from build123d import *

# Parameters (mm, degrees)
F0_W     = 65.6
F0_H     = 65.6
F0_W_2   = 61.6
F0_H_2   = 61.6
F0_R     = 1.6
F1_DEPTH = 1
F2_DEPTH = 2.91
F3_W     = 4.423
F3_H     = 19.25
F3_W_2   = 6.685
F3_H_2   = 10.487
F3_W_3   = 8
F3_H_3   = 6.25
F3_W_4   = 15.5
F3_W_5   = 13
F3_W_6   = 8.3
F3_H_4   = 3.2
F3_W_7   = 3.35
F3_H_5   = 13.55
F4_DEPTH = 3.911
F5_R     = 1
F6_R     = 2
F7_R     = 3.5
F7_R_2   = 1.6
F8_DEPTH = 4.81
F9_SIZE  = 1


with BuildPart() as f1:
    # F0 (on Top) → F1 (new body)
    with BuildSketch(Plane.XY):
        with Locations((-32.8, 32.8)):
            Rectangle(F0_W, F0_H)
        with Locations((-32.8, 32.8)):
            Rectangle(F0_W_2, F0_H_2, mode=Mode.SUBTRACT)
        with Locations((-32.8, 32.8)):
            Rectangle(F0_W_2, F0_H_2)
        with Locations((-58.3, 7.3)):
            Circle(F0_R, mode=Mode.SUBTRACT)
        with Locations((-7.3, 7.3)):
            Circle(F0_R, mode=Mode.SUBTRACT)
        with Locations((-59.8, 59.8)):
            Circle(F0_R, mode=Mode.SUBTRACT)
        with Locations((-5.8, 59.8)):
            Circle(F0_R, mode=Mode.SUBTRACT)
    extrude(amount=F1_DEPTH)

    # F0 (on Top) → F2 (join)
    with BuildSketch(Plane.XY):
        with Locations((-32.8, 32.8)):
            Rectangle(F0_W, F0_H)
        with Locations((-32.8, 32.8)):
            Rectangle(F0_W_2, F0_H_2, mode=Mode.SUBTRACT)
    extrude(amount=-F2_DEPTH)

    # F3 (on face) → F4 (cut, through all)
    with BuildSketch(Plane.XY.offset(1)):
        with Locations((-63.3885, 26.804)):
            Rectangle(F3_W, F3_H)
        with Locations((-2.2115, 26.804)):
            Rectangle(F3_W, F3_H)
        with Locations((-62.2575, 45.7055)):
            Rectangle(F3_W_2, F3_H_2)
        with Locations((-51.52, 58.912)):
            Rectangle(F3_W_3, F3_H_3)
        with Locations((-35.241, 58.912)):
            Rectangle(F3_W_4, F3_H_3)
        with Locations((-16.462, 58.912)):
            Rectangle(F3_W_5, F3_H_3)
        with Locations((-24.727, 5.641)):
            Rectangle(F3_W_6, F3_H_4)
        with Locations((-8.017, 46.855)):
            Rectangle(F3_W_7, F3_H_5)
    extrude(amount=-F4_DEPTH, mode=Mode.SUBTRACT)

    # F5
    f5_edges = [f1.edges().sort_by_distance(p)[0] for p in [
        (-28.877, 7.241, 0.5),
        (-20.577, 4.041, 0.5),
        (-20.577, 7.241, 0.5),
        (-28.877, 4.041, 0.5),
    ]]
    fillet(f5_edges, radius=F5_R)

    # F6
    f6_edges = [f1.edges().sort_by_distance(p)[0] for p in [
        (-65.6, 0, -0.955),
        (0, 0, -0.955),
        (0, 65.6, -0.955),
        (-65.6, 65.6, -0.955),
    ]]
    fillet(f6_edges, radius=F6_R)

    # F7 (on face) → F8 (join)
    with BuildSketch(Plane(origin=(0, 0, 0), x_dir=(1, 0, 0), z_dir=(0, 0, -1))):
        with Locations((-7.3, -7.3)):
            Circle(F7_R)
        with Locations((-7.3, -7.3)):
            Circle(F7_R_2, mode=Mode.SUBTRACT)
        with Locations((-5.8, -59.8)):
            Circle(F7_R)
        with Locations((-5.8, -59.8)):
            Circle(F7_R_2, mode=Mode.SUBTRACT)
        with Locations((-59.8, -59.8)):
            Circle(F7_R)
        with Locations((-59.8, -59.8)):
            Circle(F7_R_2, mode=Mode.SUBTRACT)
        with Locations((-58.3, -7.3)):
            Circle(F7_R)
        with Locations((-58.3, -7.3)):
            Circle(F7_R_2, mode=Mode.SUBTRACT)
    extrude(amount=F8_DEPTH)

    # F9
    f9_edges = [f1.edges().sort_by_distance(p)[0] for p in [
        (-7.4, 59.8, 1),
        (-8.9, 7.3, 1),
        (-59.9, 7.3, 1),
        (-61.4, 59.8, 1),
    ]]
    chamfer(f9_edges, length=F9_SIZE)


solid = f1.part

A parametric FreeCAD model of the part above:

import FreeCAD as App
import Part
import Sketcher


def edges_at(feature, points):
    """Names of the edges that pass closest to the given points."""
    edges = feature.Shape.Edges
    near = lambda p: min(range(len(edges)), key=lambda i: edges[i].distToShape(Part.Vertex(*p))[0])
    return sorted({f"Edge{near(p) + 1}" for p in points})

doc = App.newDocument("Part")
params = doc.addObject("Spreadsheet::Sheet", "Params")
for row, (alias, value) in enumerate([
    ("sketch1_diameter", "3.2 mm"),
    ("sketch1_width", "65.6 mm"),
    ("pad1_length", "1 mm"),
    ("sketch2_width", "65.6 mm"),
    ("sketch2_width2", "61.6 mm"),
    ("pad2_length", "2.91 mm"),
    ("sketch3_width", "8 mm"),
    ("sketch3_width2", "13 mm"),
    ("sketch3_width3", "15.5 mm"),
    ("sketch3_width4", "8.3 mm"),
    ("sketch3_height", "3.2 mm"),
    ("fillet_radius", "1 mm"),
    ("fillet2_radius", "2 mm"),
    ("sketch4_diameter", "7 mm"),
    ("sketch4_diameter2", "3.2 mm"),
    ("pad3_length", "4.81 mm"),
    ("chamfer_size", "1 mm"),
], start=1):
    params.set(f"A{row}", alias)
    params.set(f"B{row}", "=" + value)
    params.setAlias(f"B{row}", alias)

body = doc.addObject("PartDesign::Body", "Body")

sketch1 = body.newObject("Sketcher::SketchObject", "Sketch")
sketch1.AttachmentSupport = (doc.getObject("XY_Plane"), [""])
sketch1.MapMode = "FlatFace"
sketch1.addGeometry(Part.LineSegment(App.Vector(-65.6, 65.6, 0), App.Vector(-65.6, 0, 0)), False)
sketch1.addGeometry(Part.LineSegment(App.Vector(-65.6, 0, 0), App.Vector(0, 0, 0)), False)
sketch1.addGeometry(Part.LineSegment(App.Vector(0, 0, 0), App.Vector(0, 65.6, 0)), False)
sketch1.addGeometry(Part.LineSegment(App.Vector(0, 65.6, 0), App.Vector(-65.6, 65.6, 0)), False)
sketch1.addGeometry(Part.Circle(App.Vector(-58.3, 7.3, 0), App.Vector(0, 0, 1), 1.6), False)
sketch1.addGeometry(Part.Circle(App.Vector(-7.3, 7.3, 0), App.Vector(0, 0, 1), 1.6), False)
sketch1.addGeometry(Part.Circle(App.Vector(-59.8, 59.8, 0), App.Vector(0, 0, 1), 1.6), False)
sketch1.addGeometry(Part.Circle(App.Vector(-5.8, 59.8, 0), App.Vector(0, 0, 1), 1.6), False)
sketch1.addConstraint(Sketcher.Constraint("Coincident", 0, 2, 1, 1))
sketch1.addConstraint(Sketcher.Constraint("Coincident", 1, 2, 2, 1))
sketch1.addConstraint(Sketcher.Constraint("Coincident", 2, 2, 3, 1))
sketch1.addConstraint(Sketcher.Constraint("Coincident", 3, 2, 0, 1))
sketch1.addConstraint(Sketcher.Constraint("Vertical", 0))
sketch1.addConstraint(Sketcher.Constraint("Horizontal", 1))
sketch1.addConstraint(Sketcher.Constraint("Vertical", 2))
sketch1.addConstraint(Sketcher.Constraint("Horizontal", 3))
sketch1.addConstraint(Sketcher.Constraint("Coincident", 1, 2, -1, 1))
sketch1.addConstraint(Sketcher.Constraint("Equal", 4, 5))
sketch1.addConstraint(Sketcher.Constraint("Equal", 5, 6))
sketch1.addConstraint(Sketcher.Constraint("Equal", 6, 7))
sketch1.addConstraint(Sketcher.Constraint("Horizontal", 4, 3, 5, 3))
sketch1.addConstraint(Sketcher.Constraint("Horizontal", 6, 3, 7, 3))
sketch1.addConstraint(Sketcher.Constraint("Equal", 3, 0))
sketch1.addConstraint(Sketcher.Constraint("Diameter", 4, 3.2))
sketch1.addConstraint(Sketcher.Constraint("DistanceX", 1, 1, 1, 2, 65.6))
sketch1.addConstraint(Sketcher.Constraint("DistanceX", 4, 3, 5, 3, 51.0))
sketch1.addConstraint(Sketcher.Constraint("DistanceX", 6, 3, 7, 3, 54.0))
sketch1.addConstraint(Sketcher.Constraint("DistanceX", 4, 3, -1, 1, 58.3))
sketch1.addConstraint(Sketcher.Constraint("DistanceY", -1, 1, 4, 3, 7.3))
sketch1.addConstraint(Sketcher.Constraint("DistanceX", 6, 3, -1, 1, 59.8))
sketch1.addConstraint(Sketcher.Constraint("DistanceY", -1, 1, 6, 3, 59.8))
sketch1.setExpression("Constraints[15]", "Params.sketch1_diameter")
sketch1.setExpression("Constraints[16]", "Params.sketch1_width")
pad1 = body.newObject("PartDesign::Pad", "Pad")
pad1.Profile = sketch1
pad1.setExpression("Length", "Params.pad1_length")

sketch2 = body.newObject("Sketcher::SketchObject", "Sketch001")
sketch2.AttachmentSupport = (doc.getObject("XY_Plane"), [""])
sketch2.MapMode = "FlatFace"
sketch2.addGeometry(Part.LineSegment(App.Vector(-65.6, 65.6, 0), App.Vector(-65.6, 0, 0)), False)
sketch2.addGeometry(Part.LineSegment(App.Vector(-65.6, 0, 0), App.Vector(0, 0, 0)), False)
sketch2.addGeometry(Part.LineSegment(App.Vector(0, 0, 0), App.Vector(0, 65.6, 0)), False)
sketch2.addGeometry(Part.LineSegment(App.Vector(0, 65.6, 0), App.Vector(-65.6, 65.6, 0)), False)
sketch2.addGeometry(Part.LineSegment(App.Vector(-2, 2, 0), App.Vector(-63.6, 2, 0)), False)
sketch2.addGeometry(Part.LineSegment(App.Vector(-63.6, 2, 0), App.Vector(-63.6, 63.6, 0)), False)
sketch2.addGeometry(Part.LineSegment(App.Vector(-63.6, 63.6, 0), App.Vector(-2, 63.6, 0)), False)
sketch2.addGeometry(Part.LineSegment(App.Vector(-2, 63.6, 0), App.Vector(-2, 2, 0)), False)
sketch2.addConstraint(Sketcher.Constraint("Coincident", 0, 2, 1, 1))
sketch2.addConstraint(Sketcher.Constraint("Coincident", 1, 2, 2, 1))
sketch2.addConstraint(Sketcher.Constraint("Coincident", 2, 2, 3, 1))
sketch2.addConstraint(Sketcher.Constraint("Coincident", 3, 2, 0, 1))
sketch2.addConstraint(Sketcher.Constraint("Coincident", 4, 2, 5, 1))
sketch2.addConstraint(Sketcher.Constraint("Coincident", 5, 2, 6, 1))
sketch2.addConstraint(Sketcher.Constraint("Coincident", 6, 2, 7, 1))
sketch2.addConstraint(Sketcher.Constraint("Coincident", 7, 2, 4, 1))
sketch2.addConstraint(Sketcher.Constraint("Vertical", 0))
sketch2.addConstraint(Sketcher.Constraint("Horizontal", 1))
sketch2.addConstraint(Sketcher.Constraint("Vertical", 2))
sketch2.addConstraint(Sketcher.Constraint("Horizontal", 3))
sketch2.addConstraint(Sketcher.Constraint("Horizontal", 4))
sketch2.addConstraint(Sketcher.Constraint("Vertical", 5))
sketch2.addConstraint(Sketcher.Constraint("Horizontal", 6))
sketch2.addConstraint(Sketcher.Constraint("Vertical", 7))
sketch2.addConstraint(Sketcher.Constraint("Coincident", 1, 2, -1, 1))
sketch2.addConstraint(Sketcher.Constraint("Equal", 3, 0))
sketch2.addConstraint(Sketcher.Constraint("Equal", 6, 5))
sketch2.addConstraint(Sketcher.Constraint("DistanceX", 1, 1, 1, 2, 65.6))
sketch2.addConstraint(Sketcher.Constraint("DistanceX", 4, 2, 4, 1, 61.6))
sketch2.addConstraint(Sketcher.Constraint("DistanceY", -1, 1, 4, 2, 2.0))
sketch2.addConstraint(Sketcher.Constraint("DistanceX", 6, 2, -1, 1, 2.0))
sketch2.setExpression("Constraints[19]", "Params.sketch2_width")
sketch2.setExpression("Constraints[20]", "Params.sketch2_width2")
pad2 = body.newObject("PartDesign::Pad", "Pad001")
pad2.Profile = sketch2
pad2.setExpression("Length", "Params.pad2_length")
pad2.Reversed = True

sketch3 = body.newObject("Sketcher::SketchObject", "Sketch002")
sketch3.AttachmentSupport = (doc.getObject("XY_Plane"), [""])
sketch3.MapMode = "FlatFace"
sketch3.AttachmentOffset = App.Placement(App.Vector(0, 0, 1), App.Rotation())
sketch3.addGeometry(Part.LineSegment(App.Vector(-65.6, 36.429, 0), App.Vector(-65.6, 17.179, 0)), False)
sketch3.addGeometry(Part.LineSegment(App.Vector(-65.6, 17.179, 0), App.Vector(-61.177, 17.179, 0)), False)
sketch3.addGeometry(Part.LineSegment(App.Vector(-61.177, 17.179, 0), App.Vector(-61.177, 36.429, 0)), False)
sketch3.addGeometry(Part.LineSegment(App.Vector(-61.177, 36.429, 0), App.Vector(-65.6, 36.429, 0)), False)
sketch3.addGeometry(Part.LineSegment(App.Vector(-4.423, 36.429, 0), App.Vector(-4.423, 17.179, 0)), False)
sketch3.addGeometry(Part.LineSegment(App.Vector(-4.423, 17.179, 0), App.Vector(0, 17.179, 0)), False)
sketch3.addGeometry(Part.LineSegment(App.Vector(0, 17.179, 0), App.Vector(0, 36.429, 0)), False)
sketch3.addGeometry(Part.LineSegment(App.Vector(0, 36.429, 0), App.Vector(-4.423, 36.429, 0)), False)
sketch3.addGeometry(Part.LineSegment(App.Vector(-65.6, 50.949, 0), App.Vector(-65.6, 40.462, 0)), False)
sketch3.addGeometry(Part.LineSegment(App.Vector(-65.6, 40.462, 0), App.Vector(-58.915, 40.462, 0)), False)
sketch3.addGeometry(Part.LineSegment(App.Vector(-58.915, 40.462, 0), App.Vector(-58.915, 50.949, 0)), False)
sketch3.addGeometry(Part.LineSegment(App.Vector(-58.915, 50.949, 0), App.Vector(-65.6, 50.949, 0)), False)
sketch3.addGeometry(Part.LineSegment(App.Vector(-55.52, 62.037, 0), App.Vector(-55.52, 55.787, 0)), False)
sketch3.addGeometry(Part.LineSegment(App.Vector(-55.52, 55.787, 0), App.Vector(-47.52, 55.787, 0)), False)
sketch3.addGeometry(Part.LineSegment(App.Vector(-47.52, 55.787, 0), App.Vector(-47.52, 62.037, 0)), False)
sketch3.addGeometry(Part.LineSegment(App.Vector(-47.52, 62.037, 0), App.Vector(-55.52, 62.037, 0)), False)
sketch3.addGeometry(Part.LineSegment(App.Vector(-42.991, 62.037, 0), App.Vector(-42.991, 55.787, 0)), False)
sketch3.addGeometry(Part.LineSegment(App.Vector(-42.991, 55.787, 0), App.Vector(-27.491, 55.787, 0)), False)
sketch3.addGeometry(Part.LineSegment(App.Vector(-27.491, 55.787, 0), App.Vector(-27.491, 62.037, 0)), False)
sketch3.addGeometry(Part.LineSegment(App.Vector(-27.491, 62.037, 0), App.Vector(-42.991, 62.037, 0)), False)
sketch3.addGeometry(Part.LineSegment(App.Vector(-22.962, 62.037, 0), App.Vector(-22.962, 55.787, 0)), False)
sketch3.addGeometry(Part.LineSegment(App.Vector(-22.962, 55.787, 0), App.Vector(-9.962, 55.787, 0)), False)
sketch3.addGeometry(Part.LineSegment(App.Vector(-9.962, 55.787, 0), App.Vector(-9.962, 62.037, 0)), False)
sketch3.addGeometry(Part.LineSegment(App.Vector(-9.962, 62.037, 0), App.Vector(-22.962, 62.037, 0)), False)
sketch3.addGeometry(Part.LineSegment(App.Vector(-28.877, 7.241, 0), App.Vector(-28.877, 4.041, 0)), False)
sketch3.addGeometry(Part.LineSegment(App.Vector(-28.877, 4.041, 0), App.Vector(-20.577, 4.041, 0)), False)
sketch3.addGeometry(Part.LineSegment(App.Vector(-20.577, 4.041, 0), App.Vector(-20.577, 7.241, 0)), False)
sketch3.addGeometry(Part.LineSegment(App.Vector(-20.577, 7.241, 0), App.Vector(-28.877, 7.241, 0)), False)
sketch3.addGeometry(Part.LineSegment(App.Vector(-9.692, 53.63, 0), App.Vector(-9.692, 40.08, 0)), False)
sketch3.addGeometry(Part.LineSegment(App.Vector(-9.692, 40.08, 0), App.Vector(-6.342, 40.08, 0)), False)
sketch3.addGeometry(Part.LineSegment(App.Vector(-6.342, 40.08, 0), App.Vector(-6.342, 53.63, 0)), False)
sketch3.addGeometry(Part.LineSegment(App.Vector(-6.342, 53.63, 0), App.Vector(-9.692, 53.63, 0)), False)
sketch3.addConstraint(Sketcher.Constraint("Coincident", 0, 2, 1, 1))
sketch3.addConstraint(Sketcher.Constraint("Coincident", 1, 2, 2, 1))
sketch3.addConstraint(Sketcher.Constraint("Coincident", 2, 2, 3, 1))
sketch3.addConstraint(Sketcher.Constraint("Coincident", 3, 2, 0, 1))
sketch3.addConstraint(Sketcher.Constraint("Coincident", 4, 2, 5, 1))
sketch3.addConstraint(Sketcher.Constraint("Coincident", 5, 2, 6, 1))
sketch3.addConstraint(Sketcher.Constraint("Coincident", 6, 2, 7, 1))
sketch3.addConstraint(Sketcher.Constraint("Coincident", 7, 2, 4, 1))
sketch3.addConstraint(Sketcher.Constraint("Coincident", 8, 2, 9, 1))
sketch3.addConstraint(Sketcher.Constraint("Coincident", 9, 2, 10, 1))
sketch3.addConstraint(Sketcher.Constraint("Coincident", 10, 2, 11, 1))
sketch3.addConstraint(Sketcher.Constraint("Coincident", 11, 2, 8, 1))
sketch3.addConstraint(Sketcher.Constraint("Coincident", 12, 2, 13, 1))
sketch3.addConstraint(Sketcher.Constraint("Coincident", 13, 2, 14, 1))
sketch3.addConstraint(Sketcher.Constraint("Coincident", 14, 2, 15, 1))
sketch3.addConstraint(Sketcher.Constraint("Coincident", 15, 2, 12, 1))
sketch3.addConstraint(Sketcher.Constraint("Coincident", 16, 2, 17, 1))
sketch3.addConstraint(Sketcher.Constraint("Coincident", 17, 2, 18, 1))
sketch3.addConstraint(Sketcher.Constraint("Coincident", 18, 2, 19, 1))
sketch3.addConstraint(Sketcher.Constraint("Coincident", 19, 2, 16, 1))
sketch3.addConstraint(Sketcher.Constraint("Coincident", 20, 2, 21, 1))
sketch3.addConstraint(Sketcher.Constraint("Coincident", 21, 2, 22, 1))
sketch3.addConstraint(Sketcher.Constraint("Coincident", 22, 2, 23, 1))
sketch3.addConstraint(Sketcher.Constraint("Coincident", 23, 2, 20, 1))
sketch3.addConstraint(Sketcher.Constraint("Coincident", 24, 2, 25, 1))
sketch3.addConstraint(Sketcher.Constraint("Coincident", 25, 2, 26, 1))
sketch3.addConstraint(Sketcher.Constraint("Coincident", 26, 2, 27, 1))
sketch3.addConstraint(Sketcher.Constraint("Coincident", 27, 2, 24, 1))
sketch3.addConstraint(Sketcher.Constraint("Coincident", 28, 2, 29, 1))
sketch3.addConstraint(Sketcher.Constraint("Coincident", 29, 2, 30, 1))
sketch3.addConstraint(Sketcher.Constraint("Coincident", 30, 2, 31, 1))
sketch3.addConstraint(Sketcher.Constraint("Coincident", 31, 2, 28, 1))
sketch3.addConstraint(Sketcher.Constraint("Vertical", 0))
sketch3.addConstraint(Sketcher.Constraint("Horizontal", 1))
sketch3.addConstraint(Sketcher.Constraint("Vertical", 2))
sketch3.addConstraint(Sketcher.Constraint("Horizontal", 3))
sketch3.addConstraint(Sketcher.Constraint("Vertical", 4))
sketch3.addConstraint(Sketcher.Constraint("Horizontal", 5))
sketch3.addConstraint(Sketcher.Constraint("Vertical", 6))
sketch3.addConstraint(Sketcher.Constraint("Horizontal", 7))
sketch3.addConstraint(Sketcher.Constraint("Vertical", 8))
sketch3.addConstraint(Sketcher.Constraint("Horizontal", 9))
sketch3.addConstraint(Sketcher.Constraint("Vertical", 10))
sketch3.addConstraint(Sketcher.Constraint("Horizontal", 11))
sketch3.addConstraint(Sketcher.Constraint("Vertical", 12))
sketch3.addConstraint(Sketcher.Constraint("Horizontal", 13))
sketch3.addConstraint(Sketcher.Constraint("Vertical", 14))
sketch3.addConstraint(Sketcher.Constraint("Horizontal", 15))
sketch3.addConstraint(Sketcher.Constraint("Vertical", 16))
sketch3.addConstraint(Sketcher.Constraint("Horizontal", 17))
sketch3.addConstraint(Sketcher.Constraint("Vertical", 18))
sketch3.addConstraint(Sketcher.Constraint("Horizontal", 19))
sketch3.addConstraint(Sketcher.Constraint("Vertical", 20))
sketch3.addConstraint(Sketcher.Constraint("Horizontal", 21))
sketch3.addConstraint(Sketcher.Constraint("Vertical", 22))
sketch3.addConstraint(Sketcher.Constraint("Horizontal", 23))
sketch3.addConstraint(Sketcher.Constraint("Vertical", 24))
sketch3.addConstraint(Sketcher.Constraint("Horizontal", 25))
sketch3.addConstraint(Sketcher.Constraint("Vertical", 26))
sketch3.addConstraint(Sketcher.Constraint("Horizontal", 27))
sketch3.addConstraint(Sketcher.Constraint("Vertical", 28))
sketch3.addConstraint(Sketcher.Constraint("Horizontal", 29))
sketch3.addConstraint(Sketcher.Constraint("Vertical", 30))
sketch3.addConstraint(Sketcher.Constraint("Horizontal", 31))
sketch3.addConstraint(Sketcher.Constraint("PointOnObject", 5, 2, -2))
sketch3.addConstraint(Sketcher.Constraint("Horizontal", 1, 2, 4, 2))
sketch3.addConstraint(Sketcher.Constraint("Horizontal", 3, 2, 6, 2))
sketch3.addConstraint(Sketcher.Constraint("Horizontal", 13, 2, 16, 2))
sketch3.addConstraint(Sketcher.Constraint("Horizontal", 15, 2, 18, 2))
sketch3.addConstraint(Sketcher.Constraint("Horizontal", 17, 2, 20, 2))
sketch3.addConstraint(Sketcher.Constraint("Horizontal", 19, 2, 22, 2))
sketch3.addConstraint(Sketcher.Constraint("Vertical", 3, 2, 8, 2))
sketch3.addConstraint(Sketcher.Constraint("Equal", 3, 5))
sketch3.addConstraint(Sketcher.Constraint("DistanceX", 13, 1, 13, 2, 8.0))
sketch3.addConstraint(Sketcher.Constraint("DistanceX", 21, 1, 21, 2, 13.0))
sketch3.addConstraint(Sketcher.Constraint("DistanceX", 17, 1, 17, 2, 15.5))
sketch3.addConstraint(Sketcher.Constraint("DistanceX", 25, 1, 25, 2, 8.3))
sketch3.addConstraint(Sketcher.Constraint("DistanceY", 24, 2, 24, 1, 3.2))
sketch3.addConstraint(Sketcher.Constraint("DistanceX", 29, 1, 29, 2, 3.35))
sketch3.addConstraint(Sketcher.Constraint("DistanceY", 0, 2, 0, 1, 19.25))
sketch3.addConstraint(Sketcher.Constraint("DistanceY", 12, 2, 12, 1, 6.25))
sketch3.addConstraint(Sketcher.Constraint("DistanceY", 28, 2, 28, 1, 13.55))
sketch3.addConstraint(Sketcher.Constraint("DistanceX", 0, 2, -1, 1, 65.6))
sketch3.addConstraint(Sketcher.Constraint("DistanceX", 1, 2, 24, 2, 32.3))
sketch3.addConstraint(Sketcher.Constraint("DistanceX", 1, 1, 1, 2, 4.423))
sketch3.addConstraint(Sketcher.Constraint("DistanceX", 9, 1, 9, 2, 6.685))
sketch3.addConstraint(Sketcher.Constraint("DistanceY", 8, 2, 8, 1, 10.487))
sketch3.addConstraint(Sketcher.Constraint("DistanceX", 12, 2, -1, 1, 55.52))
sketch3.addConstraint(Sketcher.Constraint("DistanceY", -1, 1, 28, 2, 40.08))
sketch3.addConstraint(Sketcher.Constraint("DistanceY", 2, 2, 10, 2, 14.52))
sketch3.addConstraint(Sketcher.Constraint("DistanceX", 21, 2, 28, 2, 0.27))
sketch3.addConstraint(Sketcher.Constraint("DistanceY", -1, 1, 0, 2, 17.179))
sketch3.addConstraint(Sketcher.Constraint("DistanceY", -1, 1, 12, 2, 55.787))
sketch3.addConstraint(Sketcher.Constraint("DistanceX", 16, 2, -1, 1, 42.991))
sketch3.addConstraint(Sketcher.Constraint("DistanceX", 20, 2, -1, 1, 22.962))
sketch3.addConstraint(Sketcher.Constraint("DistanceY", -1, 1, 24, 2, 4.041))
sketch3.setExpression("Constraints[73]", "Params.sketch3_width")
sketch3.setExpression("Constraints[74]", "Params.sketch3_width2")
sketch3.setExpression("Constraints[75]", "Params.sketch3_width3")
sketch3.setExpression("Constraints[76]", "Params.sketch3_width4")
sketch3.setExpression("Constraints[77]", "Params.sketch3_height")
pocket1 = body.newObject("PartDesign::Pocket", "Pocket")
pocket1.Profile = sketch3
pocket1.Type = "ThroughAll"
doc.recompute()

fillet = body.newObject("PartDesign::Fillet", "Fillet")
fillet.Base = (pocket1, edges_at(pocket1, [
    (-28.877, 7.241, 0.5),
    (-20.577, 4.041, 0.5),
    (-20.577, 7.241, 0.5),
    (-28.877, 4.041, 0.5),
]))
fillet.setExpression("Radius", "Params.fillet_radius")
doc.recompute()

fillet2 = body.newObject("PartDesign::Fillet", "Fillet001")
fillet2.Base = (fillet, edges_at(fillet, [
    (-65.6, 0, -0.955),
    (0, 0, -0.955),
    (0, 65.6, -0.955),
    (-65.6, 65.6, -0.955),
]))
fillet2.setExpression("Radius", "Params.fillet2_radius")

sketch4 = body.newObject("Sketcher::SketchObject", "Sketch003")
sketch4.AttachmentSupport = (doc.getObject("XY_Plane"), [""])
sketch4.MapMode = "FlatFace"
sketch4.addGeometry(Part.Circle(App.Vector(-7.3, 7.3, 0), App.Vector(0, 0, 1), 3.5), False)
sketch4.addGeometry(Part.Circle(App.Vector(-7.3, 7.3, 0), App.Vector(0, 0, 1), 1.6), False)
sketch4.addGeometry(Part.Circle(App.Vector(-5.8, 59.8, 0), App.Vector(0, 0, 1), 3.5), False)
sketch4.addGeometry(Part.Circle(App.Vector(-5.8, 59.8, 0), App.Vector(0, 0, 1), 1.6), False)
sketch4.addGeometry(Part.Circle(App.Vector(-59.8, 59.8, 0), App.Vector(0, 0, 1), 3.5), False)
sketch4.addGeometry(Part.Circle(App.Vector(-59.8, 59.8, 0), App.Vector(0, 0, 1), 1.6), False)
sketch4.addGeometry(Part.Circle(App.Vector(-58.3, 7.3, 0), App.Vector(0, 0, 1), 3.5), False)
sketch4.addGeometry(Part.Circle(App.Vector(-58.3, 7.3, 0), App.Vector(0, 0, 1), 1.6), False)
sketch4.addConstraint(Sketcher.Constraint("Coincident", 1, 3, 0, 3))
sketch4.addConstraint(Sketcher.Constraint("Coincident", 3, 3, 2, 3))
sketch4.addConstraint(Sketcher.Constraint("Coincident", 5, 3, 4, 3))
sketch4.addConstraint(Sketcher.Constraint("Coincident", 7, 3, 6, 3))
sketch4.addConstraint(Sketcher.Constraint("Equal", 0, 2))
sketch4.addConstraint(Sketcher.Constraint("Equal", 1, 3))
sketch4.addConstraint(Sketcher.Constraint("Equal", 2, 4))
sketch4.addConstraint(Sketcher.Constraint("Equal", 3, 5))
sketch4.addConstraint(Sketcher.Constraint("Equal", 4, 6))
sketch4.addConstraint(Sketcher.Constraint("Equal", 5, 7))
sketch4.addConstraint(Sketcher.Constraint("Horizontal", 3, 3, 4, 3))
sketch4.addConstraint(Sketcher.Constraint("Horizontal", 1, 3, 6, 3))
sketch4.addConstraint(Sketcher.Constraint("Diameter", 0, 7.0))
sketch4.addConstraint(Sketcher.Constraint("Diameter", 1, 3.2))
sketch4.addConstraint(Sketcher.Constraint("DistanceX", 4, 3, 2, 3, 54.0))
sketch4.addConstraint(Sketcher.Constraint("DistanceX", 6, 3, 0, 3, 51.0))
sketch4.addConstraint(Sketcher.Constraint("DistanceX", 0, 3, -1, 1, 7.3))
sketch4.addConstraint(Sketcher.Constraint("DistanceY", -1, 1, 0, 3, 7.3))
sketch4.addConstraint(Sketcher.Constraint("DistanceX", 2, 3, -1, 1, 5.8))
sketch4.addConstraint(Sketcher.Constraint("DistanceY", -1, 1, 2, 3, 59.8))
sketch4.setExpression("Constraints[12]", "Params.sketch4_diameter")
sketch4.setExpression("Constraints[13]", "Params.sketch4_diameter2")
pad3 = body.newObject("PartDesign::Pad", "Pad002")
pad3.Profile = sketch4
pad3.setExpression("Length", "Params.pad3_length")
pad3.Reversed = True
doc.recompute()

chamfer = body.newObject("PartDesign::Chamfer", "Chamfer")
chamfer.Base = (pad3, edges_at(pad3, [
    (-7.4, 59.8, 1),
    (-8.9, 7.3, 1),
    (-59.9, 7.3, 1),
    (-61.4, 59.8, 1),
]))
chamfer.setExpression("Size", "Params.chamfer_size")

doc.recompute()
